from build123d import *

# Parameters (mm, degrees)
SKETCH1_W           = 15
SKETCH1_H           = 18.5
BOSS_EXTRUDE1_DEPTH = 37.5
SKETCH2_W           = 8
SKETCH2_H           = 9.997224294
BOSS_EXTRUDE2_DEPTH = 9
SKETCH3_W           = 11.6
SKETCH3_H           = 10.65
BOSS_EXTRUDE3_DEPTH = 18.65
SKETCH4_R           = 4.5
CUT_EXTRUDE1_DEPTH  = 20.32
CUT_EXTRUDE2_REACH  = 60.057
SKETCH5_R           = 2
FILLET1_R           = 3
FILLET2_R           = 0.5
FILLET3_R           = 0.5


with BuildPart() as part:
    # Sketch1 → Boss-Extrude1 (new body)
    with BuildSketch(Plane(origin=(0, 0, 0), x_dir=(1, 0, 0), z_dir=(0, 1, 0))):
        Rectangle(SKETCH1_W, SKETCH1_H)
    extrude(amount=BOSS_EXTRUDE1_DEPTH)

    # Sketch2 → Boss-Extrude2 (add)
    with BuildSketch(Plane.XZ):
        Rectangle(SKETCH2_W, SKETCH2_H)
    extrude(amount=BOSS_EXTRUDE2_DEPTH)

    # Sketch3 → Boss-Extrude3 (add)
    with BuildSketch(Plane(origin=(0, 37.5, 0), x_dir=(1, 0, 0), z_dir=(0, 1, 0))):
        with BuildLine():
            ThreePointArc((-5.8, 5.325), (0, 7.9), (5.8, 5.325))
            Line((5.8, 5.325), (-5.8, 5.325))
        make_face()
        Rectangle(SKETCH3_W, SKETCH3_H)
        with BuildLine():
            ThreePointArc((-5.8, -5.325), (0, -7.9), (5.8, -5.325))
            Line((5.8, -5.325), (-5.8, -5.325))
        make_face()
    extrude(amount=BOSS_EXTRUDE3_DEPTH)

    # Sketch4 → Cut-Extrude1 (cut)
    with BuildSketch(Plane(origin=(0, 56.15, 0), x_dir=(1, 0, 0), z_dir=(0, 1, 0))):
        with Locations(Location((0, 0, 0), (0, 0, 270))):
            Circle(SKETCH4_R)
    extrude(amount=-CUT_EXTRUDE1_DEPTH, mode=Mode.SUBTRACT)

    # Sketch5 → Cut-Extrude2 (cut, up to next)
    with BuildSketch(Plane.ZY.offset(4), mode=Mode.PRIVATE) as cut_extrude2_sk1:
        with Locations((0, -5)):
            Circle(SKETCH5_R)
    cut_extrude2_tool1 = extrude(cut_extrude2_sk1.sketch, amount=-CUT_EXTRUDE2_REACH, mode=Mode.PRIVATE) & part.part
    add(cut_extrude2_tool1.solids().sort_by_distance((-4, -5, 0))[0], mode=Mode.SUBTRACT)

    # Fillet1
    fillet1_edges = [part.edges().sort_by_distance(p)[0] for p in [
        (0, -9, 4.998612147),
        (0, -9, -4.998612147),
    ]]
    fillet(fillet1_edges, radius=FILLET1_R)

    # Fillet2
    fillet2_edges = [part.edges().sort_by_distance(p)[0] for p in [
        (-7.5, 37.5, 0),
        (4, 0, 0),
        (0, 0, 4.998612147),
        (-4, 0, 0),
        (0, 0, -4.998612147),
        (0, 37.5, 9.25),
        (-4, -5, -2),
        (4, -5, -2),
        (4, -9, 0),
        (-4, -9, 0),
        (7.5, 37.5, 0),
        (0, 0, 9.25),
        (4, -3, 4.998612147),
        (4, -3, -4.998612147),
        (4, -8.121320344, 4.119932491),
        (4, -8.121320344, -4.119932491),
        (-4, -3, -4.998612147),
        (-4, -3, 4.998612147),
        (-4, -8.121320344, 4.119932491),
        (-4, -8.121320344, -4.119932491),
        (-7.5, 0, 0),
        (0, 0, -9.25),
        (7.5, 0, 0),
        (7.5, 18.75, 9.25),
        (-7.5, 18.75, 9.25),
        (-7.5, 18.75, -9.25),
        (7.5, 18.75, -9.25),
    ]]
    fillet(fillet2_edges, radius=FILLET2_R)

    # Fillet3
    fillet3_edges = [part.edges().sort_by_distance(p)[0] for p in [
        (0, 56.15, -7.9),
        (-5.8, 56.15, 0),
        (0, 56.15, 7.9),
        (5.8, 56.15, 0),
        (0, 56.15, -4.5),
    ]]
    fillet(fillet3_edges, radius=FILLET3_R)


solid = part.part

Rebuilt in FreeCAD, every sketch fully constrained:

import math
import FreeCAD as App
import Part
import Sketcher
from FreeCAD import Vector
Q = App.Units.Quantity


def edges_at(feature, points):
    """Names of the edges that pass closest to the given points."""
    edges = feature.Shape.Edges
    near = lambda p: min(range(len(edges)), key=lambda i: edges[i].distToShape(Part.Vertex(*p))[0])
    return sorted({f"Edge{near(p) + 1}" for p in points})

doc = App.newDocument("Part")
body = doc.addObject("PartDesign::Body", "Body")

sketch1 = body.newObject("Sketcher::SketchObject", "Sketch")
sketch1.AttachmentSupport = (doc.getObject("XZ_Plane"), [""])
sketch1.MapMode = "FlatFace"
sketch1.addGeometry(Part.LineSegment(Vector(-8, -9, 0), Vector(-8, 9, 0)), False)
sketch1.addGeometry(Part.LineSegment(Vector(-8, 9, 0), Vector(8, 9, 0)), False)
sketch1.addGeometry(Part.LineSegment(Vector(8, 9, 0), Vector(8, -9, 0)), False)
sketch1.addGeometry(Part.LineSegment(Vector(8, -9, 0), Vector(-8, -9, 0)), False)
sketch1.addConstraint(Sketcher.Constraint("Coincident", 0, 2, 1, 1))
sketch1.addConstraint(Sketcher.Constraint("Coincident", 1, 2, 2, 1))
sketch1.addConstraint(Sketcher.Constraint("Coincident", 2, 2, 3, 1))
sketch1.addConstraint(Sketcher.Constraint("Coincident", 3, 2, 0, 1))
sketch1.addConstraint(Sketcher.Constraint("Vertical", 0))
sketch1.addConstraint(Sketcher.Constraint("Horizontal", 1))
sketch1.addConstraint(Sketcher.Constraint("Vertical", 2))
sketch1.addConstraint(Sketcher.Constraint("Horizontal", 3))
sketch1.addConstraint(Sketcher.Constraint("Symmetric", 0, 2, 2, 2, -1, 1))
sketch1.addConstraint(Sketcher.Constraint("DistanceX", 1, 1, 1, 2, Q("15 mm")))
sketch1.addConstraint(Sketcher.Constraint("DistanceY", 0, 1, 0, 2, Q("18.5 mm")))
pad1 = body.newObject("PartDesign::Pad", "Pad")
pad1.Profile = sketch1
pad1.Length = 37.5
pad1.Reversed = True

sketch2 = body.newObject("Sketcher::SketchObject", "Sketch001")
sketch2.AttachmentSupport = (doc.getObject("XZ_Plane"), [""])
sketch2.MapMode = "FlatFace"
sketch2.addGeometry(Part.LineSegment(Vector(-4, 5, 0), Vector(-4, -5, 0)), False)
sketch2.addGeometry(Part.LineSegment(Vector(-4, -5, 0), Vector(4, -5, 0)), False)
sketch2.addGeometry(Part.LineSegment(Vector(4, -5, 0), Vector(4, 5, 0)), False)
sketch2.addGeometry(Part.LineSegment(Vector(4, 5, 0), Vector(-4, 5, 0)), False)
sketch2.addConstraint(Sketcher.Constraint("Coincident", 0, 2, 1, 1))
sketch2.addConstraint(Sketcher.Constraint("Coincident", 1, 2, 2, 1))
sketch2.addConstraint(Sketcher.Constraint("Coincident", 2, 2, 3, 1))
sketch2.addConstraint(Sketcher.Constraint("Coincident", 3, 2, 0, 1))
sketch2.addConstraint(Sketcher.Constraint("Vertical", 0))
sketch2.addConstraint(Sketcher.Constraint("Horizontal", 1))
sketch2.addConstraint(Sketcher.Constraint("Vertical", 2))
sketch2.addConstraint(Sketcher.Constraint("Horizontal", 3))
sketch2.addConstraint(Sketcher.Constraint("Symmetric", 0, 2, 2, 2, -1, 1))
sketch2.addConstraint(Sketcher.Constraint("DistanceX", 1, 1, 1, 2, Q("8 mm")))
sketch2.addConstraint(Sketcher.Constraint("DistanceY", 0, 2, 0, 1, Q("9.997224 mm")))
pad2 = body.newObject("PartDesign::Pad", "Pad001")
pad2.Profile = sketch2
pad2.Length = 9

sketch3 = body.newObject("Sketcher::SketchObject", "Sketch002")
sketch3.AttachmentSupport = (doc.getObject("XZ_Plane"), [""])
sketch3.MapMode = "FlatFace"
sketch3.AttachmentOffset = App.Placement(Vector(0, 0, -37.5), App.Rotation())
sketch3.addGeometry(Part.ArcOfCircle(Part.Circle(Vector(0, 0, 0), Vector(0, 0, 1), 8), math.radians(-138), math.radians(-42)), False)
sketch3.addGeometry(Part.LineSegment(Vector(-6, -5, 0), Vector(-6, 5, 0)), False)
sketch3.addGeometry(Part.ArcOfCircle(Part.Circle(Vector(0, 0, 0), Vector(0, 0, 1), 8), math.radians(42), math.radians(138)), False)
sketch3.addGeometry(Part.LineSegment(Vector(6, 5, 0), Vector(6, -5, 0)), False)
sketch3.addConstraint(Sketcher.Constraint("Coincident", 0, 1, 1, 1))
sketch3.addConstraint(Sketcher.Constraint("Coincident", 1, 2, 2, 2))
sketch3.addConstraint(Sketcher.Constraint("Coincident", 2, 1, 3, 1))
sketch3.addConstraint(Sketcher.Constraint("Coincident", 3, 2, 0, 2))
sketch3.addConstraint(Sketcher.Constraint("Vertical", 1))
sketch3.addConstraint(Sketcher.Constraint("Vertical", 3))
sketch3.addConstraint(Sketcher.Constraint("Equal", 0, 2))
sketch3.addConstraint(Sketcher.Constraint("Symmetric", 0, 3, 2, 3, -1, 1))
sketch3.addConstraint(Sketcher.Constraint("Symmetric", 1, 2, 2, 1, -2))
sketch3.addConstraint(Sketcher.Constraint("DistanceY", 1, 1, 1, 2, Q("10.65 mm")))
sketch3.addConstraint(Sketcher.Constraint("DistanceX", 0, 1, -1, 1, Q("5.8 mm")))
sketch3.addConstraint(Sketcher.Constraint("Radius", 0, Q("7.819539 mm")))
pad3 = body.newObject("PartDesign::Pad", "Pad002")
pad3.Profile = sketch3
pad3.Length = 18.65
pad3.Reversed = True

sketch4 = body.newObject("Sketcher::SketchObject", "Sketch003")
sketch4.AttachmentSupport = (doc.getObject("XZ_Plane"), [""])
sketch4.MapMode = "FlatFace"
sketch4.AttachmentOffset = App.Placement(Vector(0, 0, -56.15), App.Rotation())
sketch4.addGeometry(Part.Circle(Vector(0, 0, 0), Vector(0, 0, 1), 4.5), False)
sketch4.addConstraint(Sketcher.Constraint("Coincident", 0, 3, -1, 1))
sketch4.addConstraint(Sketcher.Constraint("Diameter", 0, Q("9 mm")))
pocket1 = body.newObject("PartDesign::Pocket", "Pocket")
pocket1.Profile = sketch4
pocket1.Length = 20.32
pocket1.Reversed = True

sketch5 = body.newObject("Sketcher::SketchObject", "Sketch004")
sketch5.AttachmentSupport = (doc.getObject("YZ_Plane"), [""])
sketch5.MapMode = "FlatFace"
sketch5.AttachmentOffset = App.Placement(Vector(0, 0, -4), App.Rotation())
sketch5.addGeometry(Part.Circle(Vector(-5, 0, 0), Vector(0, 0, 1), 2), False)
sketch5.addConstraint(Sketcher.Constraint("PointOnObject", 0, 3, -1))
sketch5.addConstraint(Sketcher.Constraint("Diameter", 0, Q("4 mm")))
sketch5.addConstraint(Sketcher.Constraint("DistanceX", 0, 3, -1, 1, Q("5 mm")))
pocket2 = body.newObject("PartDesign::Pocket", "Pocket001")
pocket2.Profile = sketch5
pocket2.Type = "UpToFirst"
pocket2.Reversed = True
doc.recompute()

fillet = body.newObject("PartDesign::Fillet", "Fillet")
fillet.Base = (pocket2, edges_at(pocket2, [(0, -9, 4.999), (0, -9, -4.999)]))
fillet.Radius = 3
doc.recompute()

fillet2 = body.newObject("PartDesign::Fillet", "Fillet001")
fillet2.Base = (fillet, edges_at(fillet, [
    (-7.5, 37.5, 0),
    (4, 0, 0),
    (0, 0, 4.999),
    (-4, 0, 0),
    (0, 0, -4.999),
    (0, 37.5, 9.25),
    (-4, -5, -2),
    (4, -5, -2),
    (4, -9, 0),
    (-4, -9, 0),
    (7.5, 37.5, 0),
    (0, 0, 9.25),
    (4, -3, 4.999),
    (4, -3, -4.999),
    (4, -8.121, 4.12),
    (4, -8.121, -4.12),
    (-4, -3, -4.999),
    (-4, -3, 4.999),
    (-4, -8.121, 4.12),
    (-4, -8.121, -4.12),
    (-7.5, 0, 0),
    (0, 0, -9.25),
    (7.5, 0, 0),
    (7.5, 18.75, 9.25),
    (-7.5, 18.75, 9.25),
    (-7.5, 18.75, -9.25),
    (7.5, 18.75, -9.25),
]))
fillet2.Radius = 0.5
doc.recompute()

fillet3 = body.newObject("PartDesign::Fillet", "Fillet002")
fillet3.Base = (fillet2, edges_at(fillet2, [
    (0, 56.15, -7.9),
    (-5.8, 56.15, 0),
    (0, 56.15, 7.9),
    (5.8, 56.15, 0),
    (0, 56.15, -4.5),
]))
fillet3.Radius = 0.5

doc.recompute()
